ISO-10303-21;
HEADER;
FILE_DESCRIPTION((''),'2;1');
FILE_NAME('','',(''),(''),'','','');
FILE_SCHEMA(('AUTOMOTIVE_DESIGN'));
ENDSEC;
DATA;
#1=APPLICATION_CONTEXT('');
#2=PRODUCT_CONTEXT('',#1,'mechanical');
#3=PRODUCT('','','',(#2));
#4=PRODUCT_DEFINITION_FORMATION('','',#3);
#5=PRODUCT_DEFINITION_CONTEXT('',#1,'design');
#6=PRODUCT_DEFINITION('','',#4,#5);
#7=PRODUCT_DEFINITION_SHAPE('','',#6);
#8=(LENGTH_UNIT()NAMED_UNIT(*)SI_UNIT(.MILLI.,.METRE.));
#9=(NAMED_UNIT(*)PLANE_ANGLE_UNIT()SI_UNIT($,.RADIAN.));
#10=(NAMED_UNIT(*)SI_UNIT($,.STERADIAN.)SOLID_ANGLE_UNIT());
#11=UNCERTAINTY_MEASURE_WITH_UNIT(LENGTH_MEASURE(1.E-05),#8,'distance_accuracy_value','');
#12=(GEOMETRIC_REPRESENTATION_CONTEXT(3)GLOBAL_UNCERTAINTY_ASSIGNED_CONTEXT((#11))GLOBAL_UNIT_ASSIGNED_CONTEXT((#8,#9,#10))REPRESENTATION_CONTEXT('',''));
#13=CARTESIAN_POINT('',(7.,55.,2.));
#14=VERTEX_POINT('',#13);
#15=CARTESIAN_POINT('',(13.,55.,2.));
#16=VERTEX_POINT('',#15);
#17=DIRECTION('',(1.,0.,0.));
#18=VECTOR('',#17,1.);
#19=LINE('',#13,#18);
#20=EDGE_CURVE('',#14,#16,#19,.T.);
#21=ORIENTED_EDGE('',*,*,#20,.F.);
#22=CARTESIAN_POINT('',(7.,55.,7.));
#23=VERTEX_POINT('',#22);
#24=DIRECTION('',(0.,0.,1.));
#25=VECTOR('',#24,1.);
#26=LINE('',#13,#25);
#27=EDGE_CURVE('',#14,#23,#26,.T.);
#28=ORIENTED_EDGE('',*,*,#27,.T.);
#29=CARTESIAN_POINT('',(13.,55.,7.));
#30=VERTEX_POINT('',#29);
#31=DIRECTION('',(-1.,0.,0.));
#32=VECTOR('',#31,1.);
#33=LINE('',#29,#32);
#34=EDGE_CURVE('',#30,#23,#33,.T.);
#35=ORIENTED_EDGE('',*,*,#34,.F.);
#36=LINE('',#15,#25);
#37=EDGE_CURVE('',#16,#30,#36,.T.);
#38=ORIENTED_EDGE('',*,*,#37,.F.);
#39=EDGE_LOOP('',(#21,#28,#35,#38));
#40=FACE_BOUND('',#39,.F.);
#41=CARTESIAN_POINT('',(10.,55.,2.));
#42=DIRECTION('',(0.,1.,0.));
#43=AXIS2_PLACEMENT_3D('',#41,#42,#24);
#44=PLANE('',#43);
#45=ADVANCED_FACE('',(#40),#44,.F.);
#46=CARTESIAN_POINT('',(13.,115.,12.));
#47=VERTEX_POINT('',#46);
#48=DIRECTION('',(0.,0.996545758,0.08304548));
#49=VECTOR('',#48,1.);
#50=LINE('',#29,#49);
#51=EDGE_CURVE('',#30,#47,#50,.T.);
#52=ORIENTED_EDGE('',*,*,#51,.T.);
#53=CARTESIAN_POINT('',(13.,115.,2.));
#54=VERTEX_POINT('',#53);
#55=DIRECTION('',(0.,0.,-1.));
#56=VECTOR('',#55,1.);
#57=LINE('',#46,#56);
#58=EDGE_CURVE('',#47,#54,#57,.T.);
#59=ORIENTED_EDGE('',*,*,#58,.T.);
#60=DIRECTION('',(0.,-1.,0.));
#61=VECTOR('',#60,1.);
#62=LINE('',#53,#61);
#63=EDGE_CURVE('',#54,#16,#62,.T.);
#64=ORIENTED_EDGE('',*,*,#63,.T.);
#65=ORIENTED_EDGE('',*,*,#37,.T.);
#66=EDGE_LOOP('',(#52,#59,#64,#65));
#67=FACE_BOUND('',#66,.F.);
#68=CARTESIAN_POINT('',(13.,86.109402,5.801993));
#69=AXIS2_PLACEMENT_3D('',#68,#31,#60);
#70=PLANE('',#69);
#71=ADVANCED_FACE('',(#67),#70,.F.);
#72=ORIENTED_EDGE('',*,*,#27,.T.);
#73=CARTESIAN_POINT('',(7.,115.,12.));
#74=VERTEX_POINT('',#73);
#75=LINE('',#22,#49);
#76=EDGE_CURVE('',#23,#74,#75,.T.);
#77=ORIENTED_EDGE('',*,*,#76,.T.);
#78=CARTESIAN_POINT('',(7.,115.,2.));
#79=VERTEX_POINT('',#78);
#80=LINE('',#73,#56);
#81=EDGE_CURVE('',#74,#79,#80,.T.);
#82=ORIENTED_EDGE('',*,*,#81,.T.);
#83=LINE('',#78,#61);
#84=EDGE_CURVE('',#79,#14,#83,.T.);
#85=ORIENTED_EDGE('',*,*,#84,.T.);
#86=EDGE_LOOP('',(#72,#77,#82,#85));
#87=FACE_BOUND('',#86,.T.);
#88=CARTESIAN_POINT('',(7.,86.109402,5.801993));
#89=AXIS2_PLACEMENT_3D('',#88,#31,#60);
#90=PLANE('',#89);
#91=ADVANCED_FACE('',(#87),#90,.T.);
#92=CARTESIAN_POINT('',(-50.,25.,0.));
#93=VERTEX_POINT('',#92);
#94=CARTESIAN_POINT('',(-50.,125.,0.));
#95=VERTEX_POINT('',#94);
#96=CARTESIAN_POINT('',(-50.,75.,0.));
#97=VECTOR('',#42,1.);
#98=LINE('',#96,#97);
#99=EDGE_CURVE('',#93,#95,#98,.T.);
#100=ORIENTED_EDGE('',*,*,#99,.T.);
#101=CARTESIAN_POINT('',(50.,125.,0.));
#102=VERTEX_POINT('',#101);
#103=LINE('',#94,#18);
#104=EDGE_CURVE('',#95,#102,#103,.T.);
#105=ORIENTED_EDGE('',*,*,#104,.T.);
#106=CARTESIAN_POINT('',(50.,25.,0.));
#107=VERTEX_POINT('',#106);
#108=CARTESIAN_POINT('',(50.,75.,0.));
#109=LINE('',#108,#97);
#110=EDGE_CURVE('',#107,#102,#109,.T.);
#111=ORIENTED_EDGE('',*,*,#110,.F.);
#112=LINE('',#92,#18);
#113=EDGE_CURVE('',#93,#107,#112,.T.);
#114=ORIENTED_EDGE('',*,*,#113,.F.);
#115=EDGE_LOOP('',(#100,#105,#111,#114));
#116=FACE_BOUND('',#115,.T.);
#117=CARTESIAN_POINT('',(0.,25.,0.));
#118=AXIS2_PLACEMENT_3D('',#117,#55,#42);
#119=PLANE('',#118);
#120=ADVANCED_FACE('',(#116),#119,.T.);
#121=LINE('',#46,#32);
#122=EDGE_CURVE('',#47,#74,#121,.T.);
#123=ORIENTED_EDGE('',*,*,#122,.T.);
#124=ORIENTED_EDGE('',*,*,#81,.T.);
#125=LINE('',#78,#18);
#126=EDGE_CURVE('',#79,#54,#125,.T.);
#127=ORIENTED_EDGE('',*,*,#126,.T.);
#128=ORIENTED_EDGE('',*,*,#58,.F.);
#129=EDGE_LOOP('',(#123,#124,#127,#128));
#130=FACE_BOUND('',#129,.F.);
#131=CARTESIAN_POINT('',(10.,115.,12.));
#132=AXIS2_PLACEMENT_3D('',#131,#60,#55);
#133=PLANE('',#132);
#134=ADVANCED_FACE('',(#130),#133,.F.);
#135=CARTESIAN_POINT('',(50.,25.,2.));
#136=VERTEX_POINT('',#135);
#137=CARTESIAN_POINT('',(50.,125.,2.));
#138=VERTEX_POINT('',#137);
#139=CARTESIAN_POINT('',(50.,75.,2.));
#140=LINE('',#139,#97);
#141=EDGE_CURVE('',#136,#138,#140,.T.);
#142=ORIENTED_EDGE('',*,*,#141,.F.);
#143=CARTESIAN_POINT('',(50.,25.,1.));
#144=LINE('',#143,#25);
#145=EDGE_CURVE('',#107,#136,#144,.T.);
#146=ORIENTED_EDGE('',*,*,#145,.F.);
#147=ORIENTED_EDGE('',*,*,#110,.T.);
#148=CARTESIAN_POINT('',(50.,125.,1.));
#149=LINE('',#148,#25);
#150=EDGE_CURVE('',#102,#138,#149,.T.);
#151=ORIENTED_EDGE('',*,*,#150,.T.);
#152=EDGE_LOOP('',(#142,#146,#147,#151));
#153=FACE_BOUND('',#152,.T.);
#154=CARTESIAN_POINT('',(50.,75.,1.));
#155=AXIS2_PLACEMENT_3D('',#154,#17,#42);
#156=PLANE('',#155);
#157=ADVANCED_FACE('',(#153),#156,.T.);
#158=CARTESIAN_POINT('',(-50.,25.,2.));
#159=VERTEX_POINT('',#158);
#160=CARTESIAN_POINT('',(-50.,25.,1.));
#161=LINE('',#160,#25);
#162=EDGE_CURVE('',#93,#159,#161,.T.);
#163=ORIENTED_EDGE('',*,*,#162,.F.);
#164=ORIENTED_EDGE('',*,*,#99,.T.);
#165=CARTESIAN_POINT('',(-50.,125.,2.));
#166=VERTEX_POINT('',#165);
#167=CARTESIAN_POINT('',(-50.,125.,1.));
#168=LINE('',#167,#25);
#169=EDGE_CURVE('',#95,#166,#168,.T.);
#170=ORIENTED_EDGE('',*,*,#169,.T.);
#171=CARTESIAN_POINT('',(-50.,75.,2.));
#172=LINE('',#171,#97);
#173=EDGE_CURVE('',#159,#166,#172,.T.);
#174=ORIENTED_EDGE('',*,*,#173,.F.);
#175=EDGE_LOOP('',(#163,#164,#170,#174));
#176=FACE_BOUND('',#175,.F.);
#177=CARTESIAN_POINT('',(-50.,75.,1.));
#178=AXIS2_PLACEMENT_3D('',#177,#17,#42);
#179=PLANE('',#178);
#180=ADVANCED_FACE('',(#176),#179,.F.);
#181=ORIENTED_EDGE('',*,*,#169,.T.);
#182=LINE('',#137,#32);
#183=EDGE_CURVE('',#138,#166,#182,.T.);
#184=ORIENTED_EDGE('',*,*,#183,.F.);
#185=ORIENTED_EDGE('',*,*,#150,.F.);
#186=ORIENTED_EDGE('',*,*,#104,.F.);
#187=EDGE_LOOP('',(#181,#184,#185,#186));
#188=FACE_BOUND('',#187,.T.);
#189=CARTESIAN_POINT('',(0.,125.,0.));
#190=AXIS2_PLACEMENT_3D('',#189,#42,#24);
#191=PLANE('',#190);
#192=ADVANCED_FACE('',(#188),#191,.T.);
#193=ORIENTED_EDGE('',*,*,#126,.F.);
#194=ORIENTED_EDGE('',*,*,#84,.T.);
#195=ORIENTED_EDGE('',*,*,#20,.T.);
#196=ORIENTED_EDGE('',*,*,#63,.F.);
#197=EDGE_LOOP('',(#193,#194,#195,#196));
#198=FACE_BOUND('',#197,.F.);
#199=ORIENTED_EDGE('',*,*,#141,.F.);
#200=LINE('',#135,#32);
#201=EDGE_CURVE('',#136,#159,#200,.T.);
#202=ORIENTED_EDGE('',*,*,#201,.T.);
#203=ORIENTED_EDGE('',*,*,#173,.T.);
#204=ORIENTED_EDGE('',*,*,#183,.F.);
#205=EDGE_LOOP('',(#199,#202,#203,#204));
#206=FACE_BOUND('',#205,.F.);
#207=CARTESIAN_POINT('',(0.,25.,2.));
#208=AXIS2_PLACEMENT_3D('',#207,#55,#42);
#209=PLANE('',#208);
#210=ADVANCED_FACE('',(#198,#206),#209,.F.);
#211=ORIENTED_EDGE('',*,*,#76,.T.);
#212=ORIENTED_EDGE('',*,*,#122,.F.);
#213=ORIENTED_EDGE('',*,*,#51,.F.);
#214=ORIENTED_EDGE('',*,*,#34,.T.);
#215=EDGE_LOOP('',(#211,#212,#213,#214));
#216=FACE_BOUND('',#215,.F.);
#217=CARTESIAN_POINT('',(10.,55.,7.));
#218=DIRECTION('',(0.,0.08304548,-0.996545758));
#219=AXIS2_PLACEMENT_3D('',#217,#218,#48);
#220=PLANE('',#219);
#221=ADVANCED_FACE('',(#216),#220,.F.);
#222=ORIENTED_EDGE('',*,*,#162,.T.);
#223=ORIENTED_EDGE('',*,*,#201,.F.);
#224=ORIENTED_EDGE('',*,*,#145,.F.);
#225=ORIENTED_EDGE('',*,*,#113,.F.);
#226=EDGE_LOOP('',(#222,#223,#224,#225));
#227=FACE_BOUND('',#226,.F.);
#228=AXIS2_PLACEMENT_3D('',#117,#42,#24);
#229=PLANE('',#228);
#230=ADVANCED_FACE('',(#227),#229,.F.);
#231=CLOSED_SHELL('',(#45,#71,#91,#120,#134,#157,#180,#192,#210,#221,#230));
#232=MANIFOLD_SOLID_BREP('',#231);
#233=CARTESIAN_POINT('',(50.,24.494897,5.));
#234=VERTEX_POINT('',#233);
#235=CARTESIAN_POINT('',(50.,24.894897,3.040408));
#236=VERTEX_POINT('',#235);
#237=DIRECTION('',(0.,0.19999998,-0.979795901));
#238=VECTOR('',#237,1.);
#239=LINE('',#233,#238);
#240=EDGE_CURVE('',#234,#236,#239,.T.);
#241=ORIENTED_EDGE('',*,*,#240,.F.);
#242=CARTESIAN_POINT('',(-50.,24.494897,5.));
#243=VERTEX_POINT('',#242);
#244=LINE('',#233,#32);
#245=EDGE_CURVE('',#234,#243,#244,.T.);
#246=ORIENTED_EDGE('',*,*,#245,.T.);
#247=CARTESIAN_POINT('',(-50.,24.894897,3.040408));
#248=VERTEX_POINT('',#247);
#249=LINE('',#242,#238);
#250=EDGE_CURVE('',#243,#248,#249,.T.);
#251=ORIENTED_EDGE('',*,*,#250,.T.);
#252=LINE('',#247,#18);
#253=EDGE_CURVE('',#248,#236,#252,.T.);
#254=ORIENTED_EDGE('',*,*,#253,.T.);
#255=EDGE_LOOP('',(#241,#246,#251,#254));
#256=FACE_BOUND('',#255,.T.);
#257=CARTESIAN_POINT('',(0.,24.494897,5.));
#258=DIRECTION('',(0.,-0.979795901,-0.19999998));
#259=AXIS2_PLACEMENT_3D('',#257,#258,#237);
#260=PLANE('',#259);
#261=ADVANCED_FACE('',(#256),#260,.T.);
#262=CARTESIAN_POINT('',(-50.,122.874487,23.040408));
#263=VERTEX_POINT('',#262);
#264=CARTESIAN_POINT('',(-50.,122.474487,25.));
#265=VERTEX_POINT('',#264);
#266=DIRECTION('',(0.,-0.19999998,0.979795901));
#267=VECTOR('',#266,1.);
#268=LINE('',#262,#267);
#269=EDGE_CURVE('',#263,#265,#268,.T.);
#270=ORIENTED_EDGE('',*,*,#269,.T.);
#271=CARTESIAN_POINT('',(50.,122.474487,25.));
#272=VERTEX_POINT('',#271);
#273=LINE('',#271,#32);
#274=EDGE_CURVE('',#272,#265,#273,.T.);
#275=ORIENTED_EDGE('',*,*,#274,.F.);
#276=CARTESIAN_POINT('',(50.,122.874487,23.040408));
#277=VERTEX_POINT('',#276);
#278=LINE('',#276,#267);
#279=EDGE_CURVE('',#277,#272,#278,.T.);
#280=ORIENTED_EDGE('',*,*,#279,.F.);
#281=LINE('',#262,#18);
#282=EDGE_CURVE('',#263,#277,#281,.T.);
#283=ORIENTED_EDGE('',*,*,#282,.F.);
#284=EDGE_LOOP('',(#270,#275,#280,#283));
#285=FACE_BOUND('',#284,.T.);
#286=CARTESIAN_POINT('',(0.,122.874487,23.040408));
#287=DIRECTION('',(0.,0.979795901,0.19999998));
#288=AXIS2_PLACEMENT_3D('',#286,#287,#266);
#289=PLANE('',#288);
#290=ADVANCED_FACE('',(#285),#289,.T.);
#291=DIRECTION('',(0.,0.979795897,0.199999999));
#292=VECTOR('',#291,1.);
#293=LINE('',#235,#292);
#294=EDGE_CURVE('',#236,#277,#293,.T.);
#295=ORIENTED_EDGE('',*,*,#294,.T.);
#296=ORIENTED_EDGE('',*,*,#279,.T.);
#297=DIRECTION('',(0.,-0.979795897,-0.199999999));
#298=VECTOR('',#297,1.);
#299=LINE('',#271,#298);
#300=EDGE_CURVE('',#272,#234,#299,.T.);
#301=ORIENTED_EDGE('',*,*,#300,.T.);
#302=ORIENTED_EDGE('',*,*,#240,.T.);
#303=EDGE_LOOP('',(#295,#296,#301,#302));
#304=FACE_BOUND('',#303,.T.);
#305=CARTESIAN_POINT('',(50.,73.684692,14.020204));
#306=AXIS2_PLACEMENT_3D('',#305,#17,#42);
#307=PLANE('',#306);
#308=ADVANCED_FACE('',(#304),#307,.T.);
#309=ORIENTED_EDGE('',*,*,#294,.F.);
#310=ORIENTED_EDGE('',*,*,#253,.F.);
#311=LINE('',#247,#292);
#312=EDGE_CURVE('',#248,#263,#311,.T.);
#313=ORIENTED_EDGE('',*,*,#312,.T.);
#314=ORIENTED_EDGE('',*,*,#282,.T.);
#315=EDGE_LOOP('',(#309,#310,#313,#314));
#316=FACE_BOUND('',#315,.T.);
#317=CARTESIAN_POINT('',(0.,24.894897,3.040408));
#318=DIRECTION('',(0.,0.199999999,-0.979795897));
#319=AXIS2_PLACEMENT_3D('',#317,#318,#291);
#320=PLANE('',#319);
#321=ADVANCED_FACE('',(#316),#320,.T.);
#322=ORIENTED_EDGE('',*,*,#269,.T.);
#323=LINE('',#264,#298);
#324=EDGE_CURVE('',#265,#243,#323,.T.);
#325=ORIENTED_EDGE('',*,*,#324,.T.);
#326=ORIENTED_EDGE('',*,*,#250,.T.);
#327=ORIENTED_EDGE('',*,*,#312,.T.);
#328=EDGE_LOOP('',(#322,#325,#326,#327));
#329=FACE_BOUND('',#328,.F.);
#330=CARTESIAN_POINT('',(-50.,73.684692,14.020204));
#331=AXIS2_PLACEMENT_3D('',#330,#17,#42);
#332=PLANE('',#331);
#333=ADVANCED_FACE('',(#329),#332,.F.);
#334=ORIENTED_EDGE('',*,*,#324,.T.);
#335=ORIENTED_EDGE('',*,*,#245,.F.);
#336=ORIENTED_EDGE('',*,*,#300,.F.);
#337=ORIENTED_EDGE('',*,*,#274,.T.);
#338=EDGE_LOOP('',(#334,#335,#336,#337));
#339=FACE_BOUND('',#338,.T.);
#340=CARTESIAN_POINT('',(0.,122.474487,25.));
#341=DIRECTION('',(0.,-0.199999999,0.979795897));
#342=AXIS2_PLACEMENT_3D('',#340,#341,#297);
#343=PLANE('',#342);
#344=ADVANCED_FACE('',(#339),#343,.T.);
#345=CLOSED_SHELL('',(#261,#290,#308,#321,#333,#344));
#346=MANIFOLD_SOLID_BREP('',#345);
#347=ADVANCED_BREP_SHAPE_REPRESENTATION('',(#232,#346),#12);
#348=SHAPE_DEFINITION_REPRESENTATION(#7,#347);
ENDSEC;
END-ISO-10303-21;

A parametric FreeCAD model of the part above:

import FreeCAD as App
import Part
import Sketcher
from FreeCAD import Vector

doc = App.newDocument("Part")
body = doc.addObject("PartDesign::Body", "Body")
body.AllowCompound = True

# Sketch on YZ plane
sketch1 = doc.addObject("Sketcher::SketchObject", "Sketch")
body.addObject(sketch1)
sketch1.AttachmentSupport = (doc.YZ_Plane, [""])
sketch1.MapMode = "FlatFace"
sketch1.addGeometry(Part.LineSegment(Vector(24.5, 5, 0), Vector(24.9, 3, 0)), False)
sketch1.addGeometry(Part.LineSegment(Vector(24.9, 3, 0), Vector(122.9, 23, 0)), False)
sketch1.addGeometry(Part.LineSegment(Vector(122.9, 23, 0), Vector(122.5, 25, 0)), False)
sketch1.addGeometry(Part.LineSegment(Vector(122.5, 25, 0), Vector(24.5, 5, 0)), False)
sketch1.addConstraint(Sketcher.Constraint("Coincident", 0, 2, 1, 1))
sketch1.addConstraint(Sketcher.Constraint("Coincident", 1, 2, 2, 1))
sketch1.addConstraint(Sketcher.Constraint("Coincident", 2, 2, 3, 1))
sketch1.addConstraint(Sketcher.Constraint("Coincident", 3, 2, 0, 1))
sketch1.addConstraint(Sketcher.Constraint("Perpendicular", 0, 1))
sketch1.addConstraint(Sketcher.Constraint("Perpendicular", 1, 2))
sketch1.addConstraint(Sketcher.Constraint("Perpendicular", 2, 3))
sketch1.addConstraint(Sketcher.Constraint("Distance", 0, 2.0))
sketch1.addConstraint(Sketcher.Constraint("Distance", 1, 100.0))
sketch1.addConstraint(Sketcher.Constraint("DistanceY", -1, 1, 2, 2, 25.0))
sketch1.addConstraint(Sketcher.Constraint("DistanceY", -1, 1, 3, 2, 5.0))
sketch1.addConstraint(Sketcher.Constraint("DistanceX", -1, 1, 0, 2, 24.894897))
pad1 = doc.addObject("PartDesign::Pad", "Pad")
body.addObject(pad1)
pad1.Profile = sketch1
pad1.Length = 100
pad1.Midplane = True

# Sketch on YZ plane
sketch2 = doc.addObject("Sketcher::SketchObject", "Sketch001")
body.addObject(sketch2)
sketch2.AttachmentSupport = (doc.YZ_Plane, [""])
sketch2.MapMode = "FlatFace"
sketch2.addGeometry(Part.LineSegment(Vector(25, 2, 0), Vector(25, 0, 0)), False)
sketch2.addGeometry(Part.LineSegment(Vector(25, 0, 0), Vector(125, 0, 0)), False)
sketch2.addGeometry(Part.LineSegment(Vector(125, 0, 0), Vector(125, 2, 0)), False)
sketch2.addGeometry(Part.LineSegment(Vector(125, 2, 0), Vector(25, 2, 0)), False)
sketch2.addConstraint(Sketcher.Constraint("Coincident", 0, 2, 1, 1))
sketch2.addConstraint(Sketcher.Constraint("Coincident", 1, 2, 2, 1))
sketch2.addConstraint(Sketcher.Constraint("Coincident", 2, 2, 3, 1))
sketch2.addConstraint(Sketcher.Constraint("Coincident", 3, 2, 0, 1))
sketch2.addConstraint(Sketcher.Constraint("Vertical", 0))
sketch2.addConstraint(Sketcher.Constraint("Horizontal", 1))
sketch2.addConstraint(Sketcher.Constraint("Vertical", 2))
sketch2.addConstraint(Sketcher.Constraint("Horizontal", 3))
sketch2.addConstraint(Sketcher.Constraint("PointOnObject", 0, 2, -1))
sketch2.addConstraint(Sketcher.Constraint("DistanceX", 1, 1, 1, 2, 100.0))
sketch2.addConstraint(Sketcher.Constraint("DistanceY", 0, 2, 0, 1, 2.0))
sketch2.addConstraint(Sketcher.Constraint("DistanceX", -1, 1, 0, 2, 25.0))
pad2 = doc.addObject("PartDesign::Pad", "Pad001")
body.addObject(pad2)
pad2.Profile = sketch2
pad2.Length = 100
pad2.Midplane = True

# Sketch on YZ plane
sketch3 = doc.addObject("Sketcher::SketchObject", "Sketch002")
body.addObject(sketch3)
sketch3.AttachmentSupport = (doc.YZ_Plane, [""])
sketch3.MapMode = "FlatFace"
sketch3.AttachmentOffset = App.Placement(Vector(0, 0, 10), App.Rotation())
sketch3.addGeometry(Part.LineSegment(Vector(55, 7, 0), Vector(55, 2, 0)), False)
sketch3.addGeometry(Part.LineSegment(Vector(55, 2, 0), Vector(115, 2, 0)), False)
sketch3.addGeometry(Part.LineSegment(Vector(115, 2, 0), Vector(115, 12, 0)), False)
sketch3.addGeometry(Part.LineSegment(Vector(115, 12, 0), Vector(55, 7, 0)), False)
sketch3.addConstraint(Sketcher.Constraint("Coincident", 0, 2, 1, 1))
sketch3.addConstraint(Sketcher.Constraint("Coincident", 1, 2, 2, 1))
sketch3.addConstraint(Sketcher.Constraint("Coincident", 2, 2, 3, 1))
sketch3.addConstraint(Sketcher.Constraint("Coincident", 3, 2, 0, 1))
sketch3.addConstraint(Sketcher.Constraint("Vertical", 0))
sketch3.addConstraint(Sketcher.Constraint("Horizontal", 1))
sketch3.addConstraint(Sketcher.Constraint("Vertical", 2))
sketch3.addConstraint(Sketcher.Constraint("DistanceX", 1, 1, 1, 2, 60.0))
sketch3.addConstraint(Sketcher.Constraint("DistanceY", 0, 2, 0, 1, 5.0))
sketch3.addConstraint(Sketcher.Constraint("DistanceY", 2, 1, 2, 2, 10.0))
sketch3.addConstraint(Sketcher.Constraint("DistanceX", -1, 1, 0, 2, 55.0))
sketch3.addConstraint(Sketcher.Constraint("DistanceY", -1, 1, 0, 2, 2.0))
pad3 = doc.addObject("PartDesign::Pad", "Pad002")
body.addObject(pad3)
pad3.Profile = sketch3
pad3.Length = 6
pad3.Midplane = True

doc.recompute()
